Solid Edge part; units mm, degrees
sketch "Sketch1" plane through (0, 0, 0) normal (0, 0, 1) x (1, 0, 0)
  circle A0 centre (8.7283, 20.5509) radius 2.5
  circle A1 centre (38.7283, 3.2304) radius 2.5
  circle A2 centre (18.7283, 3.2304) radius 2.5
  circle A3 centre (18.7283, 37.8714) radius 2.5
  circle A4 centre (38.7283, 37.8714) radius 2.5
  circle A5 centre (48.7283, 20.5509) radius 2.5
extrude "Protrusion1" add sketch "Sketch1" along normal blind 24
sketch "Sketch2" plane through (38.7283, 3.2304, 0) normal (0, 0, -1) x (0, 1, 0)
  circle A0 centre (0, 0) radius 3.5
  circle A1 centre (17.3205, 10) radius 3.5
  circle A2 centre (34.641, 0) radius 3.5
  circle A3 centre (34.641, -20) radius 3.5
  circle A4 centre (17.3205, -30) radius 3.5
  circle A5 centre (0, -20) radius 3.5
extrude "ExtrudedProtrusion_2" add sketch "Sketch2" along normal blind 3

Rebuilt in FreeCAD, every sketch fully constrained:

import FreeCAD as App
import Part
import Sketcher

V = App.Vector
Q = App.Units.Quantity

doc = App.newDocument("Part")
body = doc.addObject("PartDesign::Body", "Body")
body.AllowCompound = True

# Sketch on XY plane
sketch1 = doc.addObject("Sketcher::SketchObject", "Sketch")
body.addObject(sketch1)
sketch1.AttachmentSupport = (doc.XY_Plane, [""])
sketch1.MapMode = "FlatFace"
sketch1.addGeometry(Part.Circle(V(8.7, 20.6, 0), V(0, 0, 1), 2.5), False)
sketch1.addGeometry(Part.Circle(V(38.7, 3.2, 0), V(0, 0, 1), 2.5), False)
sketch1.addGeometry(Part.Circle(V(18.7, 3.2, 0), V(0, 0, 1), 2.5), False)
sketch1.addGeometry(Part.Circle(V(18.7, 37.9, 0), V(0, 0, 1), 2.5), False)
sketch1.addGeometry(Part.Circle(V(38.7, 37.9, 0), V(0, 0, 1), 2.5), False)
sketch1.addGeometry(Part.Circle(V(48.7, 20.6, 0), V(0, 0, 1), 2.5), False)
sketch1.addConstraint(Sketcher.Constraint("Equal", 0, 1))
sketch1.addConstraint(Sketcher.Constraint("Equal", 1, 2))
sketch1.addConstraint(Sketcher.Constraint("Equal", 2, 3))
sketch1.addConstraint(Sketcher.Constraint("Equal", 3, 4))
sketch1.addConstraint(Sketcher.Constraint("Equal", 4, 5))
sketch1.addConstraint(Sketcher.Constraint("Horizontal", 1, 3, 2, 3))
sketch1.addConstraint(Sketcher.Constraint("Horizontal", 3, 3, 4, 3))
sketch1.addConstraint(Sketcher.Constraint("Horizontal", 0, 3, 5, 3))
sketch1.addConstraint(Sketcher.Constraint("Vertical", 2, 3, 3, 3))
sketch1.addConstraint(Sketcher.Constraint("Vertical", 1, 3, 4, 3))
sketch1.addConstraint(Sketcher.Constraint("Diameter", 0, Q("5 mm")))
sketch1.addConstraint(Sketcher.Constraint("DistanceX", 0, 3, 1, 3, Q("30 mm")))
sketch1.addConstraint(Sketcher.Constraint("DistanceX", 0, 3, 2, 3, Q("10 mm")))
sketch1.addConstraint(Sketcher.Constraint("DistanceX", 1, 3, 5, 3, Q("10 mm")))
sketch1.addConstraint(Sketcher.Constraint("DistanceY", -1, 1, 0, 3, Q("20.551 mm")))
sketch1.addConstraint(Sketcher.Constraint("DistanceY", 2, 3, 3, 3, Q("34.641 mm")))
sketch1.addConstraint(Sketcher.Constraint("DistanceX", -1, 1, 0, 3, Q("8.7283 mm")))
sketch1.addConstraint(Sketcher.Constraint("DistanceY", -1, 1, 1, 3, Q("3.2304 mm")))
pad1 = doc.addObject("PartDesign::Pad", "Pad")
body.addObject(pad1)
pad1.Profile = sketch1
pad1.Length = 24

# Sketch on XY plane
sketch2 = doc.addObject("Sketcher::SketchObject", "Sketch001")
body.addObject(sketch2)
sketch2.AttachmentSupport = (doc.XY_Plane, [""])
sketch2.MapMode = "FlatFace"
sketch2.addGeometry(Part.Circle(V(38.7, 3.2, 0), V(0, 0, 1), 3.5), False)
sketch2.addGeometry(Part.Circle(V(48.7, 20.6, 0), V(0, 0, 1), 3.5), False)
sketch2.addGeometry(Part.Circle(V(38.7, 37.9, 0), V(0, 0, 1), 3.5), False)
sketch2.addGeometry(Part.Circle(V(18.7, 37.9, 0), V(0, 0, 1), 3.5), False)
sketch2.addGeometry(Part.Circle(V(8.7, 20.6, 0), V(0, 0, 1), 3.5), False)
sketch2.addGeometry(Part.Circle(V(18.7, 3.2, 0), V(0, 0, 1), 3.5), False)
sketch2.addConstraint(Sketcher.Constraint("Equal", 0, 1))
sketch2.addConstraint(Sketcher.Constraint("Equal", 1, 2))
sketch2.addConstraint(Sketcher.Constraint("Equal", 2, 3))
sketch2.addConstraint(Sketcher.Constraint("Equal", 3, 4))
sketch2.addConstraint(Sketcher.Constraint("Equal", 4, 5))
sketch2.addConstraint(Sketcher.Constraint("Horizontal", 2, 3, 3, 3))
sketch2.addConstraint(Sketcher.Constraint("Horizontal", 1, 3, 4, 3))
sketch2.addConstraint(Sketcher.Constraint("Horizontal", 0, 3, 5, 3))
sketch2.addConstraint(Sketcher.Constraint("Vertical", 0, 3, 2, 3))
sketch2.addConstraint(Sketcher.Constraint("Vertical", 3, 3, 5, 3))
sketch2.addConstraint(Sketcher.Constraint("Diameter", 0, Q("7 mm")))
sketch2.addConstraint(Sketcher.Constraint("DistanceX", 0, 3, 1, 3, Q("10 mm")))
sketch2.addConstraint(Sketcher.Constraint("DistanceX", 3, 3, 2, 3, Q("20 mm")))
sketch2.addConstraint(Sketcher.Constraint("DistanceX", 4, 3, 3, 3, Q("10 mm")))
sketch2.addConstraint(Sketcher.Constraint("DistanceY", -1, 1, 1, 3, Q("20.551 mm")))
sketch2.addConstraint(Sketcher.Constraint("DistanceY", 0, 3, 2, 3, Q("34.641 mm")))
sketch2.addConstraint(Sketcher.Constraint("DistanceX", -1, 1, 0, 3, Q("38.7283 mm")))
sketch2.addConstraint(Sketcher.Constraint("DistanceY", -1, 1, 0, 3, Q("3.2304 mm")))
pad2 = doc.addObject("PartDesign::Pad", "Pad001")
body.addObject(pad2)
pad2.Profile = sketch2
pad2.Length = 3
pad2.Reversed = True

doc.recompute()
